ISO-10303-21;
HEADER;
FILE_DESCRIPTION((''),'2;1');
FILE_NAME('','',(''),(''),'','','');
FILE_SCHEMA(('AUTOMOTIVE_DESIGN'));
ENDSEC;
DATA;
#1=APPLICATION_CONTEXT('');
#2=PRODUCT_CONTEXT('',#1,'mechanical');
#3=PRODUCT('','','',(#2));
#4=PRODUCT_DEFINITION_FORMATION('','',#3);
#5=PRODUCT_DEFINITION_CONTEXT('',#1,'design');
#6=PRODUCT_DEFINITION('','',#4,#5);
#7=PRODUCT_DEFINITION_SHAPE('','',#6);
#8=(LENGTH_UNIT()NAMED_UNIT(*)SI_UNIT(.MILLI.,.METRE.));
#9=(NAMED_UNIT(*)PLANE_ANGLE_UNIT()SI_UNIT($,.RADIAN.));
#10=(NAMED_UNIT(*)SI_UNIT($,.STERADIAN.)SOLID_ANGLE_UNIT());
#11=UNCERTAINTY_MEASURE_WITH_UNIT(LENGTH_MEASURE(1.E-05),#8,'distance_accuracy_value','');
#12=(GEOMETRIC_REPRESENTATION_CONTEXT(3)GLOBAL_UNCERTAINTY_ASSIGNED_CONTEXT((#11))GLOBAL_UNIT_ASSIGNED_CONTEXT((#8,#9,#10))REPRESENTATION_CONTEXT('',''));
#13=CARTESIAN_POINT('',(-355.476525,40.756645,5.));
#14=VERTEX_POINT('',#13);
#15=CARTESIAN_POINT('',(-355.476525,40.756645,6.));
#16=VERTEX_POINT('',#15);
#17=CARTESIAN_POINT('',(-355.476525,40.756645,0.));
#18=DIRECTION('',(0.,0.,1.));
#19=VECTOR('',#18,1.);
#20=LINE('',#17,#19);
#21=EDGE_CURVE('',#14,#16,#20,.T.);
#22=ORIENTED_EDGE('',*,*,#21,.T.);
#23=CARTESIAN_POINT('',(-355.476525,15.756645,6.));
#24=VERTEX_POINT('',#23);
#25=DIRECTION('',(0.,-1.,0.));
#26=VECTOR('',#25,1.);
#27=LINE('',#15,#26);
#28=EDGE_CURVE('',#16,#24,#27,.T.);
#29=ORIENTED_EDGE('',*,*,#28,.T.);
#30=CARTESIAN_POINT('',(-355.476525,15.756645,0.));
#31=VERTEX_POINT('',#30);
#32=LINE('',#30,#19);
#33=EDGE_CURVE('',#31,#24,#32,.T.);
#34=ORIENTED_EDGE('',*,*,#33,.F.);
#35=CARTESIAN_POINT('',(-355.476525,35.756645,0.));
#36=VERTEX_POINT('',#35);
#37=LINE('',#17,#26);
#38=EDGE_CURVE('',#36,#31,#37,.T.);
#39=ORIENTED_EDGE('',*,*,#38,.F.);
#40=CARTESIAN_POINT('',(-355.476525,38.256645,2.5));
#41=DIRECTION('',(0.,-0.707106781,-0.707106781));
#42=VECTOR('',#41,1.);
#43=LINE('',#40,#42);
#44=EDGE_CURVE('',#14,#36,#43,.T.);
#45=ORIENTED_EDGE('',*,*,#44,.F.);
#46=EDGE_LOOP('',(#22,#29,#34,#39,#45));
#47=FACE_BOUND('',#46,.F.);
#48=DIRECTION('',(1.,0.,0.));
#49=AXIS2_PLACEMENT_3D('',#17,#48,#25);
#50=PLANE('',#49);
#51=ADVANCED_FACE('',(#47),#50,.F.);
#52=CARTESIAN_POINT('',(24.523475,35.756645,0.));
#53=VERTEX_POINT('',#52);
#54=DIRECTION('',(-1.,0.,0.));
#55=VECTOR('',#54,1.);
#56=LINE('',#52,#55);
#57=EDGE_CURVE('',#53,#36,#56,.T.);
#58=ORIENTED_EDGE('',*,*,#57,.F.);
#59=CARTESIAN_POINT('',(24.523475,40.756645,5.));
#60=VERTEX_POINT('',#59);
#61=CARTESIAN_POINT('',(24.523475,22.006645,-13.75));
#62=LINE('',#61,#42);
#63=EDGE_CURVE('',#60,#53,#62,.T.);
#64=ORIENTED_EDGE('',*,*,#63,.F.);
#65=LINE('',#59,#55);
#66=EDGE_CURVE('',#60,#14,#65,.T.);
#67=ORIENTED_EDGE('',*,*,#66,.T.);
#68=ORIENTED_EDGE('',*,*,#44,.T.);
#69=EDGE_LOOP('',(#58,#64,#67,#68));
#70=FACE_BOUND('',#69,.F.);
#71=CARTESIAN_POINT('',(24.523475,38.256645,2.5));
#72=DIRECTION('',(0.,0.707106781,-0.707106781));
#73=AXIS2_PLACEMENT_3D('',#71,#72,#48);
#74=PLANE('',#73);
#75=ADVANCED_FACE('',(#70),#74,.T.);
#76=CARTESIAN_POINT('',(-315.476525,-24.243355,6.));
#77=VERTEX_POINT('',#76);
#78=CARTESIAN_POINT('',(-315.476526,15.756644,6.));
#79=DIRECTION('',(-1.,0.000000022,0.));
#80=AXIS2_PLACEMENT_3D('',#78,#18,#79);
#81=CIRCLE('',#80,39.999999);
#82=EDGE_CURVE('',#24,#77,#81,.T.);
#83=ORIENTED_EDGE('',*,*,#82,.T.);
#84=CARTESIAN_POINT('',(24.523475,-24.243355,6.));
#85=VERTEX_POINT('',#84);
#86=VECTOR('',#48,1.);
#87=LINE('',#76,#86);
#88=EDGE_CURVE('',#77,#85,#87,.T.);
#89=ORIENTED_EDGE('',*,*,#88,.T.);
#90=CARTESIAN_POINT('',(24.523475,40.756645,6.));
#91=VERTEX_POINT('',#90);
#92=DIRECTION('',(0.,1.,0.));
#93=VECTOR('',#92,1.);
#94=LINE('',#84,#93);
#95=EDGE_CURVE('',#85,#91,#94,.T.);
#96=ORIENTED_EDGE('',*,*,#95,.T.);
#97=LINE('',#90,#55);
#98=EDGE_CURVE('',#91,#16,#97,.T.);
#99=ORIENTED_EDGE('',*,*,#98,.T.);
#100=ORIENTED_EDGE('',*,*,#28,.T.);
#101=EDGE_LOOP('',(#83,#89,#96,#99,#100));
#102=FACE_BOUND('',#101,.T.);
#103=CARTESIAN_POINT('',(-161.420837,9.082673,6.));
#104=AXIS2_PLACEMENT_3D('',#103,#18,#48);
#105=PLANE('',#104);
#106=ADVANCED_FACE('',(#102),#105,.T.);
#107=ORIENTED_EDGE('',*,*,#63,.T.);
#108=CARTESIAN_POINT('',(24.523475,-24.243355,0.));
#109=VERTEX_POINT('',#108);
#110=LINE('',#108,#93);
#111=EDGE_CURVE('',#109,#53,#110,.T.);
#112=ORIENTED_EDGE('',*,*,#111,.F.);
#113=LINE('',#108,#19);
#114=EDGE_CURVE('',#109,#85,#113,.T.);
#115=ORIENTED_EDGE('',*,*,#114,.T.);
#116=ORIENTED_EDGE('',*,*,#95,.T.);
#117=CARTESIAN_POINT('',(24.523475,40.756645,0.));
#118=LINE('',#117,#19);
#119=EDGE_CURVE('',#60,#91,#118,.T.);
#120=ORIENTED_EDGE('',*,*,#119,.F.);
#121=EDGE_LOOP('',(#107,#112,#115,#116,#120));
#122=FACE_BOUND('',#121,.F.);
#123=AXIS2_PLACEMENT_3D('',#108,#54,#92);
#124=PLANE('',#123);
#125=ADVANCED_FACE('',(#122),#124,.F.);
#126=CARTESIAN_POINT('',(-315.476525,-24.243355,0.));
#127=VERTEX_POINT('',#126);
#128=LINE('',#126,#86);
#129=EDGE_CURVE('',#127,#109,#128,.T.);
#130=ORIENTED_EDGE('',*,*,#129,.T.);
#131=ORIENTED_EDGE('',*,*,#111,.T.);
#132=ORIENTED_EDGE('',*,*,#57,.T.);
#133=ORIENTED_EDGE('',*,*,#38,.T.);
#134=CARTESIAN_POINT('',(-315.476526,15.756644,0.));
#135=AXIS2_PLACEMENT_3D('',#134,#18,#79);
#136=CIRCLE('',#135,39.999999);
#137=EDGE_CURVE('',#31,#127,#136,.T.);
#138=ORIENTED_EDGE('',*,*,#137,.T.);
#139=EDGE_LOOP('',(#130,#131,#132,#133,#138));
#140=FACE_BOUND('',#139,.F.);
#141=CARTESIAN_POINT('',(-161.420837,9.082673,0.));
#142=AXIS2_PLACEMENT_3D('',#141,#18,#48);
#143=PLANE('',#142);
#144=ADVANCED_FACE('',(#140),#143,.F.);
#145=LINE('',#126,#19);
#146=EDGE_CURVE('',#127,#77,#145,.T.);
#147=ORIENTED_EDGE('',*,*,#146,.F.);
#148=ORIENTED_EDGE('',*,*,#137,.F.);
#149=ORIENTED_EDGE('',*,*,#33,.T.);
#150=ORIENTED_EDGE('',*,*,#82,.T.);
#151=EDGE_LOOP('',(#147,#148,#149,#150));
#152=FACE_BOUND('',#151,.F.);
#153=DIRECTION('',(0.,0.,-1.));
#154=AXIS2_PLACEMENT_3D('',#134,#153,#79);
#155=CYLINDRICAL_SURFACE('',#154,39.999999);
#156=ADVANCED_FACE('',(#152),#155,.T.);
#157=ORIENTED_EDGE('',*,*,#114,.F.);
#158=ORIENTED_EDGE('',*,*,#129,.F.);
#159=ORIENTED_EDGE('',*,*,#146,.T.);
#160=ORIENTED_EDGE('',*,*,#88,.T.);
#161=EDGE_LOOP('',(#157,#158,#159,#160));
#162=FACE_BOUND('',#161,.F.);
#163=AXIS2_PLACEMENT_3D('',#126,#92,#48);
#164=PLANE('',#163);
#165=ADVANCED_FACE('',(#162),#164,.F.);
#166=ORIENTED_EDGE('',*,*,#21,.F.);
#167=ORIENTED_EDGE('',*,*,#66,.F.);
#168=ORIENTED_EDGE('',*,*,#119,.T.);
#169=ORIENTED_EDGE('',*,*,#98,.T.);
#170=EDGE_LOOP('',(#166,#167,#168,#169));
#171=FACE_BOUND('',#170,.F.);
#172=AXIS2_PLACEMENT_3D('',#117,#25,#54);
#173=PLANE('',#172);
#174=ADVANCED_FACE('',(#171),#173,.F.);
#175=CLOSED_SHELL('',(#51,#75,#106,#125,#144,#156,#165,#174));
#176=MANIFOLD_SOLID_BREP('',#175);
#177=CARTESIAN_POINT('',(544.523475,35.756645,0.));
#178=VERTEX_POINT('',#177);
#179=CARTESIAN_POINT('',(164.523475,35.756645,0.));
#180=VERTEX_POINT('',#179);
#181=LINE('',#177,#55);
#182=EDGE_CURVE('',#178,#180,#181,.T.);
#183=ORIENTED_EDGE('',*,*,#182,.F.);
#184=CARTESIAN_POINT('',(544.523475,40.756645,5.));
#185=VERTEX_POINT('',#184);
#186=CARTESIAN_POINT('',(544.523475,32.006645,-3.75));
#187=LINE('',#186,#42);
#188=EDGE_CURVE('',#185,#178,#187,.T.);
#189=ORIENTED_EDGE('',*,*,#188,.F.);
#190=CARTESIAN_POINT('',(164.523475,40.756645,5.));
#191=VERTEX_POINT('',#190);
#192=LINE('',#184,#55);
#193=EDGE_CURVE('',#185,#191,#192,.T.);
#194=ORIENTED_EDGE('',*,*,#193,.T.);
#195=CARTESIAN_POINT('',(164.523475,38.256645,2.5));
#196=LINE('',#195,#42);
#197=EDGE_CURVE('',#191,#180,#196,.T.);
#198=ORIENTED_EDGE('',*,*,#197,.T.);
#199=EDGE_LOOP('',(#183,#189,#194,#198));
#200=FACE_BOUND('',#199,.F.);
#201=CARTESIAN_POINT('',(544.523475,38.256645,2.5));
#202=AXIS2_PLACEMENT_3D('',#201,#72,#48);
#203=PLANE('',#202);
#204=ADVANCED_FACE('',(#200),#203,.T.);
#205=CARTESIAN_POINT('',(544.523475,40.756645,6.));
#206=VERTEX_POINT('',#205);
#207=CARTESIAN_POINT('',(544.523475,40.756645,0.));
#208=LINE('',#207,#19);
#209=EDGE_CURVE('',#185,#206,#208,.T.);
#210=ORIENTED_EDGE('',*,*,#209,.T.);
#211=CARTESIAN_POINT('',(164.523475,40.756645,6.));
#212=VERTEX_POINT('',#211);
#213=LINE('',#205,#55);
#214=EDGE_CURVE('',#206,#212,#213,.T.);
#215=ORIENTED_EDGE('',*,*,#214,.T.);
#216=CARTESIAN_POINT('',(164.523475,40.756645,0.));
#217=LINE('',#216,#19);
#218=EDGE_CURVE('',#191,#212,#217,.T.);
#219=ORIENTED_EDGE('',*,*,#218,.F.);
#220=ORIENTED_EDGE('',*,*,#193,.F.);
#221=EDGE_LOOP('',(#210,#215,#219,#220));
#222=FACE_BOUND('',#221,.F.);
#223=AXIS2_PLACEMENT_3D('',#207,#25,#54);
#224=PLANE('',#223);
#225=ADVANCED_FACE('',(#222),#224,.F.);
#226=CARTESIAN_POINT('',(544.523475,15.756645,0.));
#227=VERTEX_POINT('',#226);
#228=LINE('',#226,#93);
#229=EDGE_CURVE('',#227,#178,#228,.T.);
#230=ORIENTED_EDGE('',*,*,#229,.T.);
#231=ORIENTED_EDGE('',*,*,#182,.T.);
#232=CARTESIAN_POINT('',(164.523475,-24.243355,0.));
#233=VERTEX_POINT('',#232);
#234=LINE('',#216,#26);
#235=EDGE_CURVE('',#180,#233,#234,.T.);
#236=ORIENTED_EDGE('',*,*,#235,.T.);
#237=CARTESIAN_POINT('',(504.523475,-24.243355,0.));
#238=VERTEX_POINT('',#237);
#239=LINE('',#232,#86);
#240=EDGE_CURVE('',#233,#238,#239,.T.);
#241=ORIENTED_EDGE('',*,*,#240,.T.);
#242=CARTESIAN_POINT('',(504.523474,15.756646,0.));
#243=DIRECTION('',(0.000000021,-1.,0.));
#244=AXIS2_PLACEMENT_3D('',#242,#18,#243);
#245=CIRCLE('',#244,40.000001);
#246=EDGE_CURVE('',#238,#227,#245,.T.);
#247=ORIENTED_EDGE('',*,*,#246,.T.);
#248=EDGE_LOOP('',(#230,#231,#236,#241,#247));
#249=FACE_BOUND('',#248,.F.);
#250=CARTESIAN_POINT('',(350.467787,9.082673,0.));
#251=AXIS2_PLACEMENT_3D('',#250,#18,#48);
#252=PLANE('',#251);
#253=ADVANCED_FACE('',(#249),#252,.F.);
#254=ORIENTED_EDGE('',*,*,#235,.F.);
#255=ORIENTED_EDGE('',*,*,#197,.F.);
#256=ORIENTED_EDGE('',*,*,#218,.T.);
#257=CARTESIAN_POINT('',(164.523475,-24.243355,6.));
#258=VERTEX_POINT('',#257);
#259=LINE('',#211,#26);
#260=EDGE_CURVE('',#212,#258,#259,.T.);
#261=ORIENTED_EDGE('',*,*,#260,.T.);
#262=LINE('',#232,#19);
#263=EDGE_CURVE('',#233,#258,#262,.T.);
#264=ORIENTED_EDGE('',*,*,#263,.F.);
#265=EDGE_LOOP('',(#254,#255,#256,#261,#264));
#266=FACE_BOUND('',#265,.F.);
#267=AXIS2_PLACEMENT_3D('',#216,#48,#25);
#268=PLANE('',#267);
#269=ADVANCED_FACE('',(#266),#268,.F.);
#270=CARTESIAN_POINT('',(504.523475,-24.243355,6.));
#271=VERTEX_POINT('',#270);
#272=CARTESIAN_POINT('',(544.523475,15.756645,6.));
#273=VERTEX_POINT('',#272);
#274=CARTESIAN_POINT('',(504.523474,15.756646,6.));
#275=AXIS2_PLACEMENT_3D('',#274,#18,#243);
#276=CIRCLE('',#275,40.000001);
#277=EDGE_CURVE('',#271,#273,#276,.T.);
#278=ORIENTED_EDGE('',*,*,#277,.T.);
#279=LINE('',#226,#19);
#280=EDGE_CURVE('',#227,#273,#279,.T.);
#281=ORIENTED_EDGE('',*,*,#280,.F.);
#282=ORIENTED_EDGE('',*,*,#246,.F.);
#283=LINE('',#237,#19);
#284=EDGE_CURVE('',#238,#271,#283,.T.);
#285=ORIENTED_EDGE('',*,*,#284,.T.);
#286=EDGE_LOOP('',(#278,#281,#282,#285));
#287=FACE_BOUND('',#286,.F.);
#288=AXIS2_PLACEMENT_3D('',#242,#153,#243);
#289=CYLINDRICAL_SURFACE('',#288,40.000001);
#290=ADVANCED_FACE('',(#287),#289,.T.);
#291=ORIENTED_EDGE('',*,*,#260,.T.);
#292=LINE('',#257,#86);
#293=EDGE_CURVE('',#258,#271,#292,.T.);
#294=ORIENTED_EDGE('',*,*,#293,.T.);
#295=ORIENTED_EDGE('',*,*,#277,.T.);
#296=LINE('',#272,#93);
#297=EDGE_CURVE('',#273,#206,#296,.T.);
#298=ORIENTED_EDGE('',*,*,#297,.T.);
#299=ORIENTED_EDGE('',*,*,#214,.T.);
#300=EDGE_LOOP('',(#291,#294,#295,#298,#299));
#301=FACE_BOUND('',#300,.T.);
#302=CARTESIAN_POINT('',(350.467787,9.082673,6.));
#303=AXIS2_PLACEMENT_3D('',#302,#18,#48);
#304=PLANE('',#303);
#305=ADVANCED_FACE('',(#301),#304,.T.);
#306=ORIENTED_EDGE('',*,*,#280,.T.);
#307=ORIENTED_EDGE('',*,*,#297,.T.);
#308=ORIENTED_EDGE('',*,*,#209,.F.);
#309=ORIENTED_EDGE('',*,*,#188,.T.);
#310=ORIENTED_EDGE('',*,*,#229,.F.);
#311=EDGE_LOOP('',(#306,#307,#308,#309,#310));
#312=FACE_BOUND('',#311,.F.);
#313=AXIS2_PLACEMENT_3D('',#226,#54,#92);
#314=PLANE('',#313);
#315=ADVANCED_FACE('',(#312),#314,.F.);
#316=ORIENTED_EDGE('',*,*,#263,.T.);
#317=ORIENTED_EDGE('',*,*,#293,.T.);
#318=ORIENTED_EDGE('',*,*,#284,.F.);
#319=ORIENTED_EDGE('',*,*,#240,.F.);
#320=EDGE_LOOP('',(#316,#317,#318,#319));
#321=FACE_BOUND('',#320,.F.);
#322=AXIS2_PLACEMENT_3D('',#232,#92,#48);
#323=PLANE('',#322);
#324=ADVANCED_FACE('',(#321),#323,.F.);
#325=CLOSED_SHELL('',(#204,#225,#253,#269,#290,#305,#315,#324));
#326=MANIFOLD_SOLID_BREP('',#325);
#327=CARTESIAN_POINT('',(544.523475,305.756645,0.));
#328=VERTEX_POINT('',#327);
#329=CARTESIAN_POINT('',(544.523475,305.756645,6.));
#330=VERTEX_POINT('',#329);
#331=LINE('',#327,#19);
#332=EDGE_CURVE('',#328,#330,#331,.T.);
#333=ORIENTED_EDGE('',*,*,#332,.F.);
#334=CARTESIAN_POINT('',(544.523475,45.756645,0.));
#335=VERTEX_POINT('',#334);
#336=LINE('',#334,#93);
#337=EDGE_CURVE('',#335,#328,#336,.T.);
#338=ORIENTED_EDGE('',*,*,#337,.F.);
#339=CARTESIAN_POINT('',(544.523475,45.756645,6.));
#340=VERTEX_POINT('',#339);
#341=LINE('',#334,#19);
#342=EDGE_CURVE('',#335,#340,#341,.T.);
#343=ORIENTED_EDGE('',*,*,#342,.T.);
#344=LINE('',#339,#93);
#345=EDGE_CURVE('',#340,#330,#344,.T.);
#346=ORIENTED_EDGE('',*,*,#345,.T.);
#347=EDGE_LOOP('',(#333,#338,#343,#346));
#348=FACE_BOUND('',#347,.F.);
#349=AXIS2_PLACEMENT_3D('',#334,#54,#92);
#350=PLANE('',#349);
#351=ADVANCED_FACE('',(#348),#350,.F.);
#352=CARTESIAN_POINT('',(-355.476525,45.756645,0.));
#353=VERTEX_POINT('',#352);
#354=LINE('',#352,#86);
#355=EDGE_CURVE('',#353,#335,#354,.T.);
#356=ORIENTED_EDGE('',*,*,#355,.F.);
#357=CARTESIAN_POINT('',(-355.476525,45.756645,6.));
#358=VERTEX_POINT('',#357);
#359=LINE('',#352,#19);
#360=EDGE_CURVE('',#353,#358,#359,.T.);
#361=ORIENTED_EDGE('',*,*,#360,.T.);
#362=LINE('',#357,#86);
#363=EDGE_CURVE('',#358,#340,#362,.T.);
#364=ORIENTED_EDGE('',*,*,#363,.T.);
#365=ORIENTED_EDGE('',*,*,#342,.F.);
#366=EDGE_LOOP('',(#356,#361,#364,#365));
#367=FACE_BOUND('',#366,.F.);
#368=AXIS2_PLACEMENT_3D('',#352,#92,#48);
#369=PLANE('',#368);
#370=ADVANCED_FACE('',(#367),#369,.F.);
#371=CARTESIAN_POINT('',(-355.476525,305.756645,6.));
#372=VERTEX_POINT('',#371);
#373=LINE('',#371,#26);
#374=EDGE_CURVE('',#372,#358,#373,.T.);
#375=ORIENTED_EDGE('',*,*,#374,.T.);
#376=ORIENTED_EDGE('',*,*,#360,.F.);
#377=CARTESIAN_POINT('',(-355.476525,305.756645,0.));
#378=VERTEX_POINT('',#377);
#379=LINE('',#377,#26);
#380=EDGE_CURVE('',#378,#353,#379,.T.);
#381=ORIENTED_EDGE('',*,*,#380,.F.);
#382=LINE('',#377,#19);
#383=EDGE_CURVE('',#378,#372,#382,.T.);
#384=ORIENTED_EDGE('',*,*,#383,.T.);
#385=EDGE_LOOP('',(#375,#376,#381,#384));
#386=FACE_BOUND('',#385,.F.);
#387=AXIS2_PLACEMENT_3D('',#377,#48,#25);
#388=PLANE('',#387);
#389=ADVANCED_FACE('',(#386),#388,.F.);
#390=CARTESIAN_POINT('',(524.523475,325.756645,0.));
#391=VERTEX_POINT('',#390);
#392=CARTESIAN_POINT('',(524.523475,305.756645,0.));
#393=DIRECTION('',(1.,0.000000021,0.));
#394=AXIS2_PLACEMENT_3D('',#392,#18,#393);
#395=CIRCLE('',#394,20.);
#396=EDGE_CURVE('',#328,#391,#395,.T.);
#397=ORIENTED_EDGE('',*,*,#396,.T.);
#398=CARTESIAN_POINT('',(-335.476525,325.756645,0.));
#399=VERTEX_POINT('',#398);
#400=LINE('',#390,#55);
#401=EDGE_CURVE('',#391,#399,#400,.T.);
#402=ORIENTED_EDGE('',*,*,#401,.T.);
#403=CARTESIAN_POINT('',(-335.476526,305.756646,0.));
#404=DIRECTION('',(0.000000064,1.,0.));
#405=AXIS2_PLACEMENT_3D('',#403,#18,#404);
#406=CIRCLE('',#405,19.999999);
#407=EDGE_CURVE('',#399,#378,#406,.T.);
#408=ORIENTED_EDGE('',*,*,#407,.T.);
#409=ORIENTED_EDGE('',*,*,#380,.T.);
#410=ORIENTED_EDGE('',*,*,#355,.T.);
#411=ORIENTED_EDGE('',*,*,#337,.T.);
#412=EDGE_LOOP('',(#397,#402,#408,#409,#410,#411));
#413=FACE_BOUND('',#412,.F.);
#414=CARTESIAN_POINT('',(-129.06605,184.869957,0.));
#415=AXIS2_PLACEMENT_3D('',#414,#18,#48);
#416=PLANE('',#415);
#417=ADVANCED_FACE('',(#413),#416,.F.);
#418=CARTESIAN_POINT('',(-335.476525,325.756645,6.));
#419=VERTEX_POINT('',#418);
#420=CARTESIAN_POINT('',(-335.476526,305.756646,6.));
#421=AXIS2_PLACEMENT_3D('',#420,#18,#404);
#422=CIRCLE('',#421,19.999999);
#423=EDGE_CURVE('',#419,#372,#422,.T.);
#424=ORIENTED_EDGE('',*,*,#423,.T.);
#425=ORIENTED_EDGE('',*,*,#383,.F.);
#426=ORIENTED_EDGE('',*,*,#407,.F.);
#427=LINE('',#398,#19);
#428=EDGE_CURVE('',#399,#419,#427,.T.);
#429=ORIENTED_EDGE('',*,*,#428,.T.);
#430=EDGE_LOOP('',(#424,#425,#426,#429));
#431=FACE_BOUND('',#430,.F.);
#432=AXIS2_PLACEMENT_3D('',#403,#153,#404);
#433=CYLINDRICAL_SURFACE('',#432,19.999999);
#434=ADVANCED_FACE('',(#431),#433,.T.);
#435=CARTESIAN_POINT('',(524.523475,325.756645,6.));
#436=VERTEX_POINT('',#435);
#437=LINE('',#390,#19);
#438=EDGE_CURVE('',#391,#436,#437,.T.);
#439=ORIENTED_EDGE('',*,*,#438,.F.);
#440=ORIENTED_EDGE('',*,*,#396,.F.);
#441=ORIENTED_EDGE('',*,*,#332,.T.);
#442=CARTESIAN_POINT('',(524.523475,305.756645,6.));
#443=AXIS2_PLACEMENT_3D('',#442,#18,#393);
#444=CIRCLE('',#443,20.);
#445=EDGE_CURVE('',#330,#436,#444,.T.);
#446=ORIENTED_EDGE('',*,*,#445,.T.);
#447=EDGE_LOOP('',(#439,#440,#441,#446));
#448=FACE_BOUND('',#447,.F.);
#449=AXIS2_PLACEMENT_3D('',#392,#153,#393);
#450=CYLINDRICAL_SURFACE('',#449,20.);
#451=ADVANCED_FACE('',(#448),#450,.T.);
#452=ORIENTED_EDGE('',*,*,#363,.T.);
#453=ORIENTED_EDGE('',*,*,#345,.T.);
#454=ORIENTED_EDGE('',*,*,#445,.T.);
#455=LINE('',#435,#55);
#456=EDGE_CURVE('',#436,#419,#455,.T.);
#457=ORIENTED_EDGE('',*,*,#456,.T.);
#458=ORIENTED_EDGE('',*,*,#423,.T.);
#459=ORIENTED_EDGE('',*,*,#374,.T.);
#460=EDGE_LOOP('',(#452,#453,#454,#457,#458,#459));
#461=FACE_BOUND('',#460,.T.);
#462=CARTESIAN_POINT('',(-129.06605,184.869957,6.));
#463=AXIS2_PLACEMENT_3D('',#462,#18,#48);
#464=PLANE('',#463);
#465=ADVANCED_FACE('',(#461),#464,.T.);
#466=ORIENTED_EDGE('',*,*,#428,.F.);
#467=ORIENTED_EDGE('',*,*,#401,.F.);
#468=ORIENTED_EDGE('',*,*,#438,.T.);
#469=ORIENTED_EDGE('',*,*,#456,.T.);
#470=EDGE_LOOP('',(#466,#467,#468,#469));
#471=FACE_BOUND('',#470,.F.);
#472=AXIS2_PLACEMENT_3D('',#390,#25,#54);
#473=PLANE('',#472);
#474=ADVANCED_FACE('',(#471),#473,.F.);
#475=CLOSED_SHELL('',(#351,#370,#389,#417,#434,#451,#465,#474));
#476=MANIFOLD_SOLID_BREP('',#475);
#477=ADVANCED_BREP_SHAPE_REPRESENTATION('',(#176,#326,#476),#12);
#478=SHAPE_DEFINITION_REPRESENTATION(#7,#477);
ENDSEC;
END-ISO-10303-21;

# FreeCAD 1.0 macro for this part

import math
import FreeCAD as App
import Part
import Sketcher

V = App.Vector


def edges_at(feature, points):
    """Names of the edges that pass closest to the given points."""
    edges = feature.Shape.Edges
    near = lambda p: min(range(len(edges)), key=lambda i: edges[i].distToShape(Part.Vertex(*p))[0])
    return sorted({f"Edge{near(p) + 1}" for p in points})

doc = App.newDocument("Part")
body = doc.addObject("PartDesign::Body", "Body")
body.AllowCompound = True

sketch1 = doc.addObject("Sketcher::SketchObject", "Sketch")
body.addObject(sketch1)
sketch1.AttachmentSupport = (doc.XY_Plane, [""])
sketch1.MapMode = "FlatFace"
sketch1.addGeometry([
    Part.ArcOfCircle(Part.Circle(V(-335, 306, 0), V(0, 0, 1), 20), math.radians(90), math.radians(180)),
    Part.LineSegment(V(-355, 306, 0), V(-355, 46, 0)),
    Part.LineSegment(V(-355, 46, 0), V(545, 46, 0)),
    Part.LineSegment(V(545, 46, 0), V(545, 306, 0)),
    Part.ArcOfCircle(Part.Circle(V(525, 306, 0), V(0, 0, 1), 20), math.radians(0), math.radians(90)),
    Part.LineSegment(V(525, 326, 0), V(-335, 326, 0)),
    Part.LineSegment(V(545, 41, 0), V(165, 41, 0)),
    Part.LineSegment(V(165, 41, 0), V(165, -24, 0)),
    Part.LineSegment(V(165, -24, 0), V(505, -24, 0)),
    Part.ArcOfCircle(Part.Circle(V(505, 16, 0), V(0, 0, 1), 40), math.radians(-90), math.radians(0)),
    Part.LineSegment(V(545, 16, 0), V(545, 41, 0)),
    Part.LineSegment(V(25, -24, 0), V(25, 41, 0)),
    Part.LineSegment(V(25, 41, 0), V(-355, 41, 0)),
    Part.LineSegment(V(-355, 41, 0), V(-355, 16, 0)),
    Part.ArcOfCircle(Part.Circle(V(-315, 16, 0), V(0, 0, 1), 40), math.radians(180), math.radians(270)),
    Part.LineSegment(V(-315, -24, 0), V(25, -24, 0)),
], False)
sketch1.addConstraint([
    Sketcher.Constraint("Tangent", 0, 2, 1, 1),
    Sketcher.Constraint("Coincident", 1, 2, 2, 1),
    Sketcher.Constraint("Coincident", 2, 2, 3, 1),
    Sketcher.Constraint("Tangent", 3, 2, 4, 1),
    Sketcher.Constraint("Tangent", 4, 2, 5, 1),
    Sketcher.Constraint("Tangent", 5, 2, 0, 1),
    Sketcher.Constraint("Coincident", 6, 2, 7, 1),
    Sketcher.Constraint("Coincident", 7, 2, 8, 1),
    Sketcher.Constraint("Tangent", 8, 2, 9, 1),
    Sketcher.Constraint("Tangent", 9, 2, 10, 1),
    Sketcher.Constraint("Coincident", 10, 2, 6, 1),
    Sketcher.Constraint("Coincident", 11, 2, 12, 1),
    Sketcher.Constraint("Coincident", 12, 2, 13, 1),
    Sketcher.Constraint("Tangent", 13, 2, 14, 1),
    Sketcher.Constraint("Tangent", 14, 2, 15, 1),
    Sketcher.Constraint("Coincident", 15, 2, 11, 1),
    Sketcher.Constraint("Vertical", 1),
    Sketcher.Constraint("Horizontal", 2),
    Sketcher.Constraint("Vertical", 3),
    Sketcher.Constraint("Horizontal", 5),
    Sketcher.Constraint("Horizontal", 6),
    Sketcher.Constraint("Vertical", 7),
    Sketcher.Constraint("Horizontal", 8),
    Sketcher.Constraint("Vertical", 10),
    Sketcher.Constraint("Vertical", 11),
    Sketcher.Constraint("Horizontal", 12),
    Sketcher.Constraint("Vertical", 13),
    Sketcher.Constraint("Horizontal", 15),
    Sketcher.Constraint("Equal", 0, 4),
    Sketcher.Constraint("Equal", 9, 14),
    Sketcher.Constraint("Horizontal", 9, 3, 14, 3),
    Sketcher.Constraint("Horizontal", 10, 2, 11, 2),
    Sketcher.Constraint("Vertical", 3, 2, 9, 2),
    Sketcher.Constraint("Vertical", 1, 2, 12, 2),
    Sketcher.Constraint("Equal", 6, 12),
    Sketcher.Constraint("Radius", 0, 19.999999),
    Sketcher.Constraint("Radius", 9, 40.000001),
    Sketcher.Constraint("DistanceX", 2, 1, 2, 2, 900.0),
    Sketcher.Constraint("DistanceX", 6, 2, 6, 1, 380.0),
    Sketcher.Constraint("DistanceY", 1, 2, 1, 1, 260.0),
    Sketcher.Constraint("DistanceY", 7, 2, 7, 1, 65.0),
    Sketcher.Constraint("DistanceY", 9, 3, 4, 3, 289.999999),
    Sketcher.Constraint("DistanceX", 0, 3, -1, 1, 335.476526),
    Sketcher.Constraint("DistanceY", -1, 1, 0, 3, 305.756646),
])
pad1 = doc.addObject("PartDesign::Pad", "Pad")
body.addObject(pad1)
pad1.Profile = sketch1
pad1.Length = 6
doc.recompute()

chamfer = doc.addObject("PartDesign::Chamfer", "Chamfer")
body.addObject(chamfer)
chamfer.Base = (pad1, edges_at(pad1, [(-165.477, 40.757, 0)]))
chamfer.Size = 5
doc.recompute()

chamfer2 = doc.addObject("PartDesign::Chamfer", "Chamfer001")
body.addObject(chamfer2)
chamfer2.Base = (chamfer, edges_at(chamfer, [(354.523, 40.757, 0)]))
chamfer2.Size = 5

doc.recompute()
